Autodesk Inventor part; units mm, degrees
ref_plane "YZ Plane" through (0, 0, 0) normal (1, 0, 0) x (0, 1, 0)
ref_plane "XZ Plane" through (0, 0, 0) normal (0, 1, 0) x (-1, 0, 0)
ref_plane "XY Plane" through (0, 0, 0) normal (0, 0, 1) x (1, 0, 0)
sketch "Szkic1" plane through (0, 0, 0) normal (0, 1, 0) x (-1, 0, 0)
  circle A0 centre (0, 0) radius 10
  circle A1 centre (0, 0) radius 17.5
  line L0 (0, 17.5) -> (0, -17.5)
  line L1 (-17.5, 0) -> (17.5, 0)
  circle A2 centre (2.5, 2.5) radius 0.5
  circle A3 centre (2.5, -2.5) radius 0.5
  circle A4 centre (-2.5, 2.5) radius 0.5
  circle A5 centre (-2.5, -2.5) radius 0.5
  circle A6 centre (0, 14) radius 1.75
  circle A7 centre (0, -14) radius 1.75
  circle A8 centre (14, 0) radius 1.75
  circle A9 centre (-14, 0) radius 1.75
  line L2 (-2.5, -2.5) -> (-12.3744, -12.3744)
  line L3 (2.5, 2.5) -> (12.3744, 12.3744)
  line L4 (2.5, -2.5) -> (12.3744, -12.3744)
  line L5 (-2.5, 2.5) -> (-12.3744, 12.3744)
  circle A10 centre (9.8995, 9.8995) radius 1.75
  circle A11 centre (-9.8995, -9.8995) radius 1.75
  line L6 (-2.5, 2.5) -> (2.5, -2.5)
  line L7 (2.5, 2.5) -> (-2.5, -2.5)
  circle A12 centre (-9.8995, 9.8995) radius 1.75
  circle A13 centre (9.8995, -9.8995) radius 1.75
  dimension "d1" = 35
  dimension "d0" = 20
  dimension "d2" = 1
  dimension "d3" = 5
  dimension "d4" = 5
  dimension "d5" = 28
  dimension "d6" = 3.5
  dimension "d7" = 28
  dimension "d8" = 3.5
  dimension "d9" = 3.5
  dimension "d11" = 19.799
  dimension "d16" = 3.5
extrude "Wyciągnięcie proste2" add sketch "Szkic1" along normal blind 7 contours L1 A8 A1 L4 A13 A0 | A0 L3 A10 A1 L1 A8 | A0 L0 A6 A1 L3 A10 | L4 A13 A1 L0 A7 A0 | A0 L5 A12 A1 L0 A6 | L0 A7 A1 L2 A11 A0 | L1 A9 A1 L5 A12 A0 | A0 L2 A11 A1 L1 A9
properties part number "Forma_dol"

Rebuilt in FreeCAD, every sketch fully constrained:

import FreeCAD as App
import Part
import Sketcher
from FreeCAD import Vector
Q = App.Units.Quantity

doc = App.newDocument("Part")
params = doc.addObject("Spreadsheet::Sheet", "Params")
for row, (alias, value) in enumerate([
    ("sketch1_diameter", "35 mm"),
    ("sketch1_diameter2", "20 mm"),
    ("sketch1_diameter3", "3.5 mm"),
    ("pad1_length", "7 mm"),
], start=1):
    params.set(f"A{row}", alias)
    params.set(f"B{row}", "=" + value)
    params.setAlias(f"B{row}", alias)

body = doc.addObject("PartDesign::Body", "Body")

# Sketch on XZ plane
sketch1 = body.newObject("Sketcher::SketchObject", "Sketch")
sketch1.AttachmentSupport = (doc.getObject("XZ_Plane"), [""])
sketch1.MapMode = "FlatFace"
sketch1.addGeometry(Part.Circle(Vector(0, 0, 0), Vector(0, 0, 1), 17.5), False)
sketch1.addGeometry(Part.Circle(Vector(-14, 0, 0), Vector(0, 0, 1), 1.8), False)
sketch1.addGeometry(Part.Circle(Vector(-9.9, -9.9, 0), Vector(0, 0, 1), 1.8), False)
sketch1.addGeometry(Part.Circle(Vector(0, 0, 0), Vector(0, 0, 1), 10), False)
sketch1.addGeometry(Part.Circle(Vector(-9.9, 9.9, 0), Vector(0, 0, 1), 1.8), False)
sketch1.addGeometry(Part.Circle(Vector(0, -14, 0), Vector(0, 0, 1), 1.8), False)
sketch1.addGeometry(Part.Circle(Vector(0, 14, 0), Vector(0, 0, 1), 1.8), False)
sketch1.addGeometry(Part.Circle(Vector(9.9, -9.9, 0), Vector(0, 0, 1), 1.8), False)
sketch1.addGeometry(Part.Circle(Vector(9.9, 9.9, 0), Vector(0, 0, 1), 1.8), False)
sketch1.addGeometry(Part.Circle(Vector(14, 0, 0), Vector(0, 0, 1), 1.8), False)
sketch1.addConstraint(Sketcher.Constraint("Coincident", 0, 3, -1, 1))
sketch1.addConstraint(Sketcher.Constraint("Coincident", 3, 3, -1, 1))
sketch1.addConstraint(Sketcher.Constraint("Equal", 1, 2))
sketch1.addConstraint(Sketcher.Constraint("Equal", 2, 4))
sketch1.addConstraint(Sketcher.Constraint("Equal", 4, 5))
sketch1.addConstraint(Sketcher.Constraint("Equal", 5, 6))
sketch1.addConstraint(Sketcher.Constraint("Equal", 6, 7))
sketch1.addConstraint(Sketcher.Constraint("Equal", 7, 8))
sketch1.addConstraint(Sketcher.Constraint("Equal", 8, 9))
sketch1.addConstraint(Sketcher.Constraint("Symmetric", 5, 3, 6, 3, -1, 1))
sketch1.addConstraint(Sketcher.Constraint("Symmetric", 4, 3, 7, 3, -1, 1))
sketch1.addConstraint(Sketcher.Constraint("Symmetric", 2, 3, 8, 3, -1, 1))
sketch1.addConstraint(Sketcher.Constraint("Symmetric", 1, 3, 9, 3, -1, 1))
sketch1.addConstraint(Sketcher.Constraint("Symmetric", 2, 3, 7, 3, -2))
sketch1.addConstraint(Sketcher.Constraint("PointOnObject", 1, 3, -1))
sketch1.addConstraint(Sketcher.Constraint("PointOnObject", 5, 3, -2))
sketch1.addConstraint(Sketcher.Constraint("Diameter", 0, Q("35 mm")))
sketch1.addConstraint(Sketcher.Constraint("Diameter", 3, Q("20 mm")))
sketch1.addConstraint(Sketcher.Constraint("Diameter", 1, Q("3.5 mm")))
sketch1.addConstraint(Sketcher.Constraint("DistanceX", 1, 3, -1, 1, Q("14 mm")))
sketch1.addConstraint(Sketcher.Constraint("DistanceY", 5, 3, -1, 1, Q("14 mm")))
sketch1.addConstraint(Sketcher.Constraint("DistanceY", 2, 3, 4, 3, Q("19.799 mm")))
sketch1.addConstraint(Sketcher.Constraint("DistanceX", 2, 3, 7, 3, Q("19.799 mm")))
sketch1.setExpression("Constraints[16]", "Params.sketch1_diameter")
sketch1.setExpression("Constraints[17]", "Params.sketch1_diameter2")
sketch1.setExpression("Constraints[18]", "Params.sketch1_diameter3")
pad1 = body.newObject("PartDesign::Pad", "Pad")
pad1.Profile = sketch1
pad1.setExpression("Length", "Params.pad1_length")
pad1.Reversed = True

doc.recompute()
